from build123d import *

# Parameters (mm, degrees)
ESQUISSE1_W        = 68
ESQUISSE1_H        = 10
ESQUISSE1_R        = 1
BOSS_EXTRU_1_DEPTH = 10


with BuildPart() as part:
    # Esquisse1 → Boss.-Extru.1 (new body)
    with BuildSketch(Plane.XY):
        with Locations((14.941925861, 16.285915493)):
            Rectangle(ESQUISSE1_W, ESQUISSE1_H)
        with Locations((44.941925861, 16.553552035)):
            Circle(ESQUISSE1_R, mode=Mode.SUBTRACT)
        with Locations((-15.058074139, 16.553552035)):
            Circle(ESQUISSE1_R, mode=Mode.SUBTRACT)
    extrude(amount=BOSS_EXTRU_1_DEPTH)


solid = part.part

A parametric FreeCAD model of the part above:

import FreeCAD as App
import Part
import Sketcher
Q = App.Units.Quantity

doc = App.newDocument("Part")
body = doc.addObject("PartDesign::Body", "Body")

# Sketch on XY plane
sketch1 = doc.addObject("Sketcher::SketchObject", "Sketch")
body.addObject(sketch1)
sketch1.AttachmentSupport = (doc.XY_Plane, [""])
sketch1.MapMode = "FlatFace"
sketch1.addGeometry(Part.LineSegment(App.Vector(-19.1, 21.3, 0), App.Vector(-19.1, 11.3, 0)), False)
sketch1.addGeometry(Part.LineSegment(App.Vector(-19.1, 11.3, 0), App.Vector(48.9, 11.3, 0)), False)
sketch1.addGeometry(Part.LineSegment(App.Vector(48.9, 11.3, 0), App.Vector(48.9, 21.3, 0)), False)
sketch1.addGeometry(Part.LineSegment(App.Vector(48.9, 21.3, 0), App.Vector(-19.1, 21.3, 0)), False)
sketch1.addGeometry(Part.Circle(App.Vector(-15.1, 16.6, 0), App.Vector(0, 0, 1), 1), False)
sketch1.addGeometry(Part.Circle(App.Vector(44.9, 16.6, 0), App.Vector(0, 0, 1), 1), False)
sketch1.addConstraint(Sketcher.Constraint("Coincident", 0, 2, 1, 1))
sketch1.addConstraint(Sketcher.Constraint("Coincident", 1, 2, 2, 1))
sketch1.addConstraint(Sketcher.Constraint("Coincident", 2, 2, 3, 1))
sketch1.addConstraint(Sketcher.Constraint("Coincident", 3, 2, 0, 1))
sketch1.addConstraint(Sketcher.Constraint("Vertical", 0))
sketch1.addConstraint(Sketcher.Constraint("Horizontal", 1))
sketch1.addConstraint(Sketcher.Constraint("Vertical", 2))
sketch1.addConstraint(Sketcher.Constraint("Horizontal", 3))
sketch1.addConstraint(Sketcher.Constraint("Equal", 4, 5))
sketch1.addConstraint(Sketcher.Constraint("Horizontal", 4, 3, 5, 3))
sketch1.addConstraint(Sketcher.Constraint("Diameter", 4, Q("2 mm")))
sketch1.addConstraint(Sketcher.Constraint("DistanceX", 1, 1, 1, 2, Q("68 mm")))
sketch1.addConstraint(Sketcher.Constraint("DistanceY", 0, 2, 0, 1, Q("10 mm")))
sketch1.addConstraint(Sketcher.Constraint("DistanceX", 4, 3, 5, 3, Q("60 mm")))
sketch1.addConstraint(Sketcher.Constraint("DistanceX", 0, 2, 4, 3, Q("4 mm")))
sketch1.addConstraint(Sketcher.Constraint("DistanceX", 4, 3, -1, 1, Q("15.058074 mm")))
sketch1.addConstraint(Sketcher.Constraint("DistanceY", -1, 1, 4, 3, Q("16.553552 mm")))
sketch1.addConstraint(Sketcher.Constraint("DistanceY", -1, 1, 0, 2, Q("11.285915 mm")))
pad1 = doc.addObject("PartDesign::Pad", "Pad")
body.addObject(pad1)
pad1.Profile = sketch1
pad1.Length = 10

doc.recompute()
